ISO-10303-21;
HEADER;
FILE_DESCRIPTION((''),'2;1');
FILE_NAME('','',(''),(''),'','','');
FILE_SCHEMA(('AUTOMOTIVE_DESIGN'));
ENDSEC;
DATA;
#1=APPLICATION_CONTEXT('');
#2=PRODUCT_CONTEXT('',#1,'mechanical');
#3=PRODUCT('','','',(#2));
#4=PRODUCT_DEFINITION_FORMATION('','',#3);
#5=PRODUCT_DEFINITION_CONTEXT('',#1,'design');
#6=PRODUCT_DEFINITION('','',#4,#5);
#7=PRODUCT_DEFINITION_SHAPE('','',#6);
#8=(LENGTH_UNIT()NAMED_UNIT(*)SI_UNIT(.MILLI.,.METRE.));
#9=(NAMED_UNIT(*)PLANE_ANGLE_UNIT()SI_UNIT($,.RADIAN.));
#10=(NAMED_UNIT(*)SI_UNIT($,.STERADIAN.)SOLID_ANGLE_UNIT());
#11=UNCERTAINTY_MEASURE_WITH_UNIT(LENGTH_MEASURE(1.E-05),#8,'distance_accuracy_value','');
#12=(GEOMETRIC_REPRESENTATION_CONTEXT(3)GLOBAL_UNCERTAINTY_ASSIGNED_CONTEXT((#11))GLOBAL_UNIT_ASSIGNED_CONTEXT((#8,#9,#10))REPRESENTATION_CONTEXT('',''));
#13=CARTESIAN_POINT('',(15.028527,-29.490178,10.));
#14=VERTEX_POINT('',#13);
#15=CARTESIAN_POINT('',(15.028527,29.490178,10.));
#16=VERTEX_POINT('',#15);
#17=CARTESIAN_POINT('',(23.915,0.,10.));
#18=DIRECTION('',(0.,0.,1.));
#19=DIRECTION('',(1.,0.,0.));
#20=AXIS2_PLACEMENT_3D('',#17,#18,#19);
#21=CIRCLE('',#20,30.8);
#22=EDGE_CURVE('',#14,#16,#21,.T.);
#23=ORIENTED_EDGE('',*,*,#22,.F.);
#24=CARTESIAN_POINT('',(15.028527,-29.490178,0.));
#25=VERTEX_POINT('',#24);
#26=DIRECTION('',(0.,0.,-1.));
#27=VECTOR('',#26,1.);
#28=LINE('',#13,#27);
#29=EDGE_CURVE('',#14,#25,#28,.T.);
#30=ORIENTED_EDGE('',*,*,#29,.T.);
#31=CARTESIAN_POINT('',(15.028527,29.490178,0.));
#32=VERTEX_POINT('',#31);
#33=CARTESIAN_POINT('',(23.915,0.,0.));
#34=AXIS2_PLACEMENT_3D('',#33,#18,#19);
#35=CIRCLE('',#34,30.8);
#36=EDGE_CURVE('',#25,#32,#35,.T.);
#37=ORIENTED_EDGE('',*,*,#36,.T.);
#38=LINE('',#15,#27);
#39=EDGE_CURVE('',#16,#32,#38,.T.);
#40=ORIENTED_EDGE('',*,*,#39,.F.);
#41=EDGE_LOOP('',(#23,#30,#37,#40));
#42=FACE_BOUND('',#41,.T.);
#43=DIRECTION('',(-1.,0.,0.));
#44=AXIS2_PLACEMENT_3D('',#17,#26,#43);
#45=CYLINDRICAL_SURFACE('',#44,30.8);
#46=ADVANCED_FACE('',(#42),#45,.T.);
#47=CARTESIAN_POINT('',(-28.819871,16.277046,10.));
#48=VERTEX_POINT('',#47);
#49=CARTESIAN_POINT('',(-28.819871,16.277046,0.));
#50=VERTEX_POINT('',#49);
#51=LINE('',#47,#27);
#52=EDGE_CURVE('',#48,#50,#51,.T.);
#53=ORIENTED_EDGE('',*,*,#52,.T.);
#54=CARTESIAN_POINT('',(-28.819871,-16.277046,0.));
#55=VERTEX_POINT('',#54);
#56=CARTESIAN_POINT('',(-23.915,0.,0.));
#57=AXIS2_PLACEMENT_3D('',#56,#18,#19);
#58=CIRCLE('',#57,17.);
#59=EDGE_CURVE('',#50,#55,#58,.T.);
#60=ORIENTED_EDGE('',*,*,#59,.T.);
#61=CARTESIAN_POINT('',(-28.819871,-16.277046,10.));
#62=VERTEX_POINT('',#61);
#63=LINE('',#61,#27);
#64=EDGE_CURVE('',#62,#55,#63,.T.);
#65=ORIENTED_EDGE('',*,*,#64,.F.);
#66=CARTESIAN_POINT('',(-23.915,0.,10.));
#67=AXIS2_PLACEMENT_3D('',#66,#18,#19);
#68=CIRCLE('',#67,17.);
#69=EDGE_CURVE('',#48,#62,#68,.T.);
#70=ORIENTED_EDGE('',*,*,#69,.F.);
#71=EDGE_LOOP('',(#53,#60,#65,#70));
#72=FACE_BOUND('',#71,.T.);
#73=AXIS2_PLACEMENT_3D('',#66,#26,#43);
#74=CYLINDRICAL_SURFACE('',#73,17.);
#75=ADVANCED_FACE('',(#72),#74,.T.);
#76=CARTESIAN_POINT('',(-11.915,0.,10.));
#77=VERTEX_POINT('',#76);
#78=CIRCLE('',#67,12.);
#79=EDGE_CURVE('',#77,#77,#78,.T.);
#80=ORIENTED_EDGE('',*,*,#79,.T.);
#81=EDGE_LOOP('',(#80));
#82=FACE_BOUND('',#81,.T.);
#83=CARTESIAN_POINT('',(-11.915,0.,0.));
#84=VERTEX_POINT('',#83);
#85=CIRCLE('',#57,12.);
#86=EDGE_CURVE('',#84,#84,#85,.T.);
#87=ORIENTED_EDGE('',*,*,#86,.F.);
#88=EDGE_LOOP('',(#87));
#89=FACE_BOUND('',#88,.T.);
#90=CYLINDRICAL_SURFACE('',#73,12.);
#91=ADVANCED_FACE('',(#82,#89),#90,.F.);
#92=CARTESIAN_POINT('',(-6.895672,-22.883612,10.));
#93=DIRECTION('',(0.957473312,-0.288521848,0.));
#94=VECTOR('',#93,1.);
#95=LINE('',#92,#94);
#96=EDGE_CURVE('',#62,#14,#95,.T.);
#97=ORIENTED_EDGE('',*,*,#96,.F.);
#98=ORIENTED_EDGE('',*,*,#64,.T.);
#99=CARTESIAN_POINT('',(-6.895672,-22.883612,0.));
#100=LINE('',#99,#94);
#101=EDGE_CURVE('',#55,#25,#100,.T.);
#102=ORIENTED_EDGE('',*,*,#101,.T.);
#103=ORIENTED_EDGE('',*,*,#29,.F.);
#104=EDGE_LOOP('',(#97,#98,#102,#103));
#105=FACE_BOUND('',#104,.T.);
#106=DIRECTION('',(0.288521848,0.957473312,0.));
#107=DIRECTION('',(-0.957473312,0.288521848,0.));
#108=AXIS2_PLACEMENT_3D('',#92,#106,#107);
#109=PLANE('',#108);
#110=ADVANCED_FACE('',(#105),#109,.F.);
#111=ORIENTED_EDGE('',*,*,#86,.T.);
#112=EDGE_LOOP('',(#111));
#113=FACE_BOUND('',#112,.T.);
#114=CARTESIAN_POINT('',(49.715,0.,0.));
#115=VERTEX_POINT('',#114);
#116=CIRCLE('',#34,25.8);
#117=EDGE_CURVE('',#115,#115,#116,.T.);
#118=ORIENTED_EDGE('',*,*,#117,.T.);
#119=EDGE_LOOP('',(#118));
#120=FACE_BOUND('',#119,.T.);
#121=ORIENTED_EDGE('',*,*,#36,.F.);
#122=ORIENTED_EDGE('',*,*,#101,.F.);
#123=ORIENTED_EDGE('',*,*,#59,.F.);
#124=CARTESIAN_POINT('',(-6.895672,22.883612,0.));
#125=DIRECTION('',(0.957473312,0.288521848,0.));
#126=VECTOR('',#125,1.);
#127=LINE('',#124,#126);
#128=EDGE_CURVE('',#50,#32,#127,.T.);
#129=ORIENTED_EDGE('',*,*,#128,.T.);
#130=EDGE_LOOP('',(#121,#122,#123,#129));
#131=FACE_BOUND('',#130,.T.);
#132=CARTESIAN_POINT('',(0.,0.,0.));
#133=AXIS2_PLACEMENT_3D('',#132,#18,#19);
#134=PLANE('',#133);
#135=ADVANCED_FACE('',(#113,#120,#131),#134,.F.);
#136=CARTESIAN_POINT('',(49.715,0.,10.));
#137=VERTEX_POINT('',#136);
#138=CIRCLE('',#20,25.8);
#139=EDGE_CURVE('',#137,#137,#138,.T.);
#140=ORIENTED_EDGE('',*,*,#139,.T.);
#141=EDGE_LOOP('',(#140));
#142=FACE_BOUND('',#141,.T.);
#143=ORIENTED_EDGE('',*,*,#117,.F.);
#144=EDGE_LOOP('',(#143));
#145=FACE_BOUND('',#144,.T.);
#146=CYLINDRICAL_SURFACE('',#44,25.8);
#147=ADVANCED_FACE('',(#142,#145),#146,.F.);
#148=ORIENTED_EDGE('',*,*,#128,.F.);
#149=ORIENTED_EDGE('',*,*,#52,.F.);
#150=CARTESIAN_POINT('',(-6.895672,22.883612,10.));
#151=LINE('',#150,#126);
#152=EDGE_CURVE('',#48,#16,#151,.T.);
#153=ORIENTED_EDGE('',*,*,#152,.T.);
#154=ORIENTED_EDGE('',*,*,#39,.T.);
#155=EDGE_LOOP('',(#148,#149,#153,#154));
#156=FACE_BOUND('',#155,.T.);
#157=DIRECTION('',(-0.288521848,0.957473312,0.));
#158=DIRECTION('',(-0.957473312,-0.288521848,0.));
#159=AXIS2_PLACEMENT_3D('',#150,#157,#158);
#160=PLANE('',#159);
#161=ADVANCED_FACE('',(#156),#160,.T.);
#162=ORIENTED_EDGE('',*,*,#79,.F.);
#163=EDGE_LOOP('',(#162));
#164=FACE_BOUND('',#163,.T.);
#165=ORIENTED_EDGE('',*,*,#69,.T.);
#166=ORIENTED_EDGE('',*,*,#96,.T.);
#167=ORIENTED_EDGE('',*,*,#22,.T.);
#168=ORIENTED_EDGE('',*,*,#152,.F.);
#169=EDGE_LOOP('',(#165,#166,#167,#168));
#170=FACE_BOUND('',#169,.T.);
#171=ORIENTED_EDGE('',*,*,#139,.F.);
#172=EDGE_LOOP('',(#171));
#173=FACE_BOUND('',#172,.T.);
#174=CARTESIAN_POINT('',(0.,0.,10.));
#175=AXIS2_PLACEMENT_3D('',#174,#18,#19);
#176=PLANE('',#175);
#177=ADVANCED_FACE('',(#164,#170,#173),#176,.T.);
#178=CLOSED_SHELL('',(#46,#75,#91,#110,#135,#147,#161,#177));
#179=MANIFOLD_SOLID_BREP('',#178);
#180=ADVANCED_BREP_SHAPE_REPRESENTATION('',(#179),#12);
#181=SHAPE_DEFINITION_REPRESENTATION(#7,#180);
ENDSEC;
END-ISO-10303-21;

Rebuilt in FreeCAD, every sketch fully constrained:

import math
import FreeCAD as App
import Part
import Sketcher
from FreeCAD import Vector
Q = App.Units.Quantity

doc = App.newDocument("Part")
body = doc.addObject("PartDesign::Body", "Body")

sketch1 = body.newObject("Sketcher::SketchObject", "Sketch")
sketch1.AttachmentSupport = (doc.getObject("XY_Plane"), [""])
sketch1.MapMode = "FlatFace"
sketch1.addGeometry([
    Part.LineSegment(Vector(15, 29, 0), Vector(-29, 16, 0)),
    Part.ArcOfCircle(Part.Circle(Vector(-24, 0, 0), Vector(0, 0, 1), 17), math.radians(107), math.radians(253)),
    Part.LineSegment(Vector(-29, -16, 0), Vector(15, -29, 0)),
    Part.ArcOfCircle(Part.Circle(Vector(24, 0, 0), Vector(0, 0, 1), 31), math.radians(-107), math.radians(107)),
    Part.Circle(Vector(24, 0, 0), Vector(0, 0, 1), 26),
    Part.Circle(Vector(-24, 0, 0), Vector(0, 0, 1), 12),
], False)
sketch1.addConstraint([
    Sketcher.Constraint("Tangent", 0, 2, 1, 1),
    Sketcher.Constraint("Tangent", 1, 2, 2, 1),
    Sketcher.Constraint("Tangent", 2, 2, 3, 1),
    Sketcher.Constraint("Tangent", 3, 2, 0, 1),
    Sketcher.Constraint("Coincident", 4, 3, 3, 3),
    Sketcher.Constraint("Coincident", 5, 3, 1, 3),
    Sketcher.Constraint("Symmetric", 1, 3, 3, 3, -1, 1),
    Sketcher.Constraint("PointOnObject", 1, 3, -1),
    Sketcher.Constraint("Diameter", 5, Q("24 mm")),
    Sketcher.Constraint("Radius", 1, Q("17 mm")),
    Sketcher.Constraint("Diameter", 4, Q("51.6 mm")),
    Sketcher.Constraint("Radius", 3, Q("30.8 mm")),
    Sketcher.Constraint("DistanceX", 1, 3, 3, 3, Q("47.83 mm")),
])
pad1 = body.newObject("PartDesign::Pad", "Pad")
pad1.Profile = sketch1
pad1.Length = 10

doc.recompute()
